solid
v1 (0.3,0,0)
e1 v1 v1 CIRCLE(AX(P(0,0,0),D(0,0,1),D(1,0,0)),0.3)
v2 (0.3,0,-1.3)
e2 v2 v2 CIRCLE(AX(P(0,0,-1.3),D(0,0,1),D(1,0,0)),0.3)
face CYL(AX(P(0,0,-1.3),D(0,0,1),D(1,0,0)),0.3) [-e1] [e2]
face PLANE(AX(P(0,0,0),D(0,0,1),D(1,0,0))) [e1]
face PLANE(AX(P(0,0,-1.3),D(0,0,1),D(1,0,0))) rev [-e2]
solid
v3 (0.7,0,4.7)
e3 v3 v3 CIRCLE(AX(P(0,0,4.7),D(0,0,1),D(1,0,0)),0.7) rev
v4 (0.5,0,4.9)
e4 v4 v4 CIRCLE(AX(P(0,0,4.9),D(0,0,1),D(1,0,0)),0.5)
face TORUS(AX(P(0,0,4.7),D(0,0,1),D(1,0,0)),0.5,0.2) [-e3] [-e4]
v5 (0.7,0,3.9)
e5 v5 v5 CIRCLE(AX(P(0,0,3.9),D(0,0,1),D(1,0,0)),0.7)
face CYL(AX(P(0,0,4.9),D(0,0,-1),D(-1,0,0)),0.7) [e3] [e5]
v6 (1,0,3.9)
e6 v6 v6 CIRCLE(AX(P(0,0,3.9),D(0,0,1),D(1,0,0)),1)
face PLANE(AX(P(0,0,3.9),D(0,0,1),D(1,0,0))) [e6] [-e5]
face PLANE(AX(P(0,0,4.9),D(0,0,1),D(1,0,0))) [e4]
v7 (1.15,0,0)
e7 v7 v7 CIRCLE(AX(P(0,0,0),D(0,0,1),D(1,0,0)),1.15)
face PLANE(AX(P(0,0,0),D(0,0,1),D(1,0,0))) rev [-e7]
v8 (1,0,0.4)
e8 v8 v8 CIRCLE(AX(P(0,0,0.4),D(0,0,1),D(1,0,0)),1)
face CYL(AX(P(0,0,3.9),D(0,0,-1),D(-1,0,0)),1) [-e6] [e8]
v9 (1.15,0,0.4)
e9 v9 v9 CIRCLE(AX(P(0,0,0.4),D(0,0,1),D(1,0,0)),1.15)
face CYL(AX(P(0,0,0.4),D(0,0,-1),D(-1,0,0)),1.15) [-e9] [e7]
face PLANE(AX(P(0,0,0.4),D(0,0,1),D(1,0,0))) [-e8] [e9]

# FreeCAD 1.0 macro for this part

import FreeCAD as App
import Part
import Sketcher

V = App.Vector
Q = App.Units.Quantity


def edges_at(feature, points):
    """Names of the edges that pass closest to the given points."""
    edges = feature.Shape.Edges
    near = lambda p: min(range(len(edges)), key=lambda i: edges[i].distToShape(Part.Vertex(*p))[0])
    return sorted({f"Edge{near(p) + 1}" for p in points})

doc = App.newDocument("Part")
params = doc.addObject("Spreadsheet::Sheet", "Params")
for row, (alias, value) in enumerate([
    ("sketch1_diameter", "2 mm"),
    ("pad1_length", "3.9 mm"),
    ("sketch2_diameter", "2 mm"),
    ("sketch2_diameter2", "2.3 mm"),
    ("pad2_length", "0.4 mm"),
    ("sketch3_diameter", "1.4 mm"),
    ("pad3_length", "1 mm"),
    ("fillet_radius", "0.2 mm"),
    ("sketch4_diameter", "0.6 mm"),
    ("pad4_length", "1.3 mm"),
], start=1):
    params.set(f"A{row}", alias)
    params.set(f"B{row}", "=" + value)
    params.setAlias(f"B{row}", alias)

body = doc.addObject("PartDesign::Body", "Body")

# Sketch on XY plane
sketch1 = doc.addObject("Sketcher::SketchObject", "Sketch")
body.addObject(sketch1)
sketch1.AttachmentSupport = (doc.XY_Plane, [""])
sketch1.MapMode = "FlatFace"
sketch1.addGeometry(Part.Circle(V(0, 0, 0), V(0, 0, 1), 1), False)
sketch1.addConstraint(Sketcher.Constraint("Coincident", 0, 3, -1, 1))
sketch1.addConstraint(Sketcher.Constraint("Diameter", 0, Q("2 mm")))
sketch1.setExpression("Constraints[1]", "Params.sketch1_diameter")
pad1 = doc.addObject("PartDesign::Pad", "Pad")
body.addObject(pad1)
pad1.Profile = sketch1
pad1.setExpression("Length", "Params.pad1_length")

# Sketch on XY plane
sketch2 = doc.addObject("Sketcher::SketchObject", "Sketch001")
body.addObject(sketch2)
sketch2.AttachmentSupport = (doc.XY_Plane, [""])
sketch2.MapMode = "FlatFace"
sketch2.addGeometry(Part.Circle(V(0, 0, 0), V(0, 0, 1), 1.1), False)
sketch2.addGeometry(Part.Circle(V(0, 0, 0), V(0, 0, 1), 1), False)
sketch2.addConstraint(Sketcher.Constraint("Coincident", 0, 3, -1, 1))
sketch2.addConstraint(Sketcher.Constraint("Coincident", 1, 3, -1, 1))
sketch2.addConstraint(Sketcher.Constraint("Diameter", 1, Q("2 mm")))
sketch2.addConstraint(Sketcher.Constraint("Diameter", 0, Q("2.3 mm")))
sketch2.setExpression("Constraints[2]", "Params.sketch2_diameter")
sketch2.setExpression("Constraints[3]", "Params.sketch2_diameter2")
pad2 = doc.addObject("PartDesign::Pad", "Pad001")
body.addObject(pad2)
pad2.Profile = sketch2
pad2.setExpression("Length", "Params.pad2_length")

# Sketch on XY plane
sketch3 = doc.addObject("Sketcher::SketchObject", "Sketch002")
body.addObject(sketch3)
sketch3.AttachmentSupport = (doc.XY_Plane, [""])
sketch3.MapMode = "FlatFace"
sketch3.AttachmentOffset = App.Placement(V(0, 0, 3.9), App.Rotation())
sketch3.addGeometry(Part.Circle(V(0, 0, 0), V(0, 0, 1), 0.7), False)
sketch3.addConstraint(Sketcher.Constraint("Coincident", 0, 3, -1, 1))
sketch3.addConstraint(Sketcher.Constraint("Diameter", 0, Q("1.4 mm")))
sketch3.setExpression("Constraints[1]", "Params.sketch3_diameter")
pad3 = doc.addObject("PartDesign::Pad", "Pad002")
body.addObject(pad3)
pad3.Profile = sketch3
pad3.setExpression("Length", "Params.pad3_length")
doc.recompute()

fillet = doc.addObject("PartDesign::Fillet", "Fillet")
body.addObject(fillet)
fillet.Base = (pad3, edges_at(pad3, [(-0.7, 0, 4.9)]))
fillet.setExpression("Radius", "Params.fillet_radius")
body2 = doc.addObject("PartDesign::Body", "Body001")

# Sketch on XY plane
sketch4 = doc.addObject("Sketcher::SketchObject", "Sketch003")
body2.addObject(sketch4)
sketch4.AttachmentSupport = (doc.getObject("XY_Plane001"), [""])
sketch4.MapMode = "FlatFace"
sketch4.addGeometry(Part.Circle(V(0, 0, 0), V(0, 0, 1), 0.3), False)
sketch4.addConstraint(Sketcher.Constraint("Coincident", 0, 3, -1, 1))
sketch4.addConstraint(Sketcher.Constraint("Diameter", 0, Q("0.6 mm")))
sketch4.setExpression("Constraints[1]", "Params.sketch4_diameter")
pad4 = doc.addObject("PartDesign::Pad", "Pad003")
body2.addObject(pad4)
pad4.Profile = sketch4
pad4.setExpression("Length", "Params.pad4_length")
pad4.Reversed = True

doc.recompute()
